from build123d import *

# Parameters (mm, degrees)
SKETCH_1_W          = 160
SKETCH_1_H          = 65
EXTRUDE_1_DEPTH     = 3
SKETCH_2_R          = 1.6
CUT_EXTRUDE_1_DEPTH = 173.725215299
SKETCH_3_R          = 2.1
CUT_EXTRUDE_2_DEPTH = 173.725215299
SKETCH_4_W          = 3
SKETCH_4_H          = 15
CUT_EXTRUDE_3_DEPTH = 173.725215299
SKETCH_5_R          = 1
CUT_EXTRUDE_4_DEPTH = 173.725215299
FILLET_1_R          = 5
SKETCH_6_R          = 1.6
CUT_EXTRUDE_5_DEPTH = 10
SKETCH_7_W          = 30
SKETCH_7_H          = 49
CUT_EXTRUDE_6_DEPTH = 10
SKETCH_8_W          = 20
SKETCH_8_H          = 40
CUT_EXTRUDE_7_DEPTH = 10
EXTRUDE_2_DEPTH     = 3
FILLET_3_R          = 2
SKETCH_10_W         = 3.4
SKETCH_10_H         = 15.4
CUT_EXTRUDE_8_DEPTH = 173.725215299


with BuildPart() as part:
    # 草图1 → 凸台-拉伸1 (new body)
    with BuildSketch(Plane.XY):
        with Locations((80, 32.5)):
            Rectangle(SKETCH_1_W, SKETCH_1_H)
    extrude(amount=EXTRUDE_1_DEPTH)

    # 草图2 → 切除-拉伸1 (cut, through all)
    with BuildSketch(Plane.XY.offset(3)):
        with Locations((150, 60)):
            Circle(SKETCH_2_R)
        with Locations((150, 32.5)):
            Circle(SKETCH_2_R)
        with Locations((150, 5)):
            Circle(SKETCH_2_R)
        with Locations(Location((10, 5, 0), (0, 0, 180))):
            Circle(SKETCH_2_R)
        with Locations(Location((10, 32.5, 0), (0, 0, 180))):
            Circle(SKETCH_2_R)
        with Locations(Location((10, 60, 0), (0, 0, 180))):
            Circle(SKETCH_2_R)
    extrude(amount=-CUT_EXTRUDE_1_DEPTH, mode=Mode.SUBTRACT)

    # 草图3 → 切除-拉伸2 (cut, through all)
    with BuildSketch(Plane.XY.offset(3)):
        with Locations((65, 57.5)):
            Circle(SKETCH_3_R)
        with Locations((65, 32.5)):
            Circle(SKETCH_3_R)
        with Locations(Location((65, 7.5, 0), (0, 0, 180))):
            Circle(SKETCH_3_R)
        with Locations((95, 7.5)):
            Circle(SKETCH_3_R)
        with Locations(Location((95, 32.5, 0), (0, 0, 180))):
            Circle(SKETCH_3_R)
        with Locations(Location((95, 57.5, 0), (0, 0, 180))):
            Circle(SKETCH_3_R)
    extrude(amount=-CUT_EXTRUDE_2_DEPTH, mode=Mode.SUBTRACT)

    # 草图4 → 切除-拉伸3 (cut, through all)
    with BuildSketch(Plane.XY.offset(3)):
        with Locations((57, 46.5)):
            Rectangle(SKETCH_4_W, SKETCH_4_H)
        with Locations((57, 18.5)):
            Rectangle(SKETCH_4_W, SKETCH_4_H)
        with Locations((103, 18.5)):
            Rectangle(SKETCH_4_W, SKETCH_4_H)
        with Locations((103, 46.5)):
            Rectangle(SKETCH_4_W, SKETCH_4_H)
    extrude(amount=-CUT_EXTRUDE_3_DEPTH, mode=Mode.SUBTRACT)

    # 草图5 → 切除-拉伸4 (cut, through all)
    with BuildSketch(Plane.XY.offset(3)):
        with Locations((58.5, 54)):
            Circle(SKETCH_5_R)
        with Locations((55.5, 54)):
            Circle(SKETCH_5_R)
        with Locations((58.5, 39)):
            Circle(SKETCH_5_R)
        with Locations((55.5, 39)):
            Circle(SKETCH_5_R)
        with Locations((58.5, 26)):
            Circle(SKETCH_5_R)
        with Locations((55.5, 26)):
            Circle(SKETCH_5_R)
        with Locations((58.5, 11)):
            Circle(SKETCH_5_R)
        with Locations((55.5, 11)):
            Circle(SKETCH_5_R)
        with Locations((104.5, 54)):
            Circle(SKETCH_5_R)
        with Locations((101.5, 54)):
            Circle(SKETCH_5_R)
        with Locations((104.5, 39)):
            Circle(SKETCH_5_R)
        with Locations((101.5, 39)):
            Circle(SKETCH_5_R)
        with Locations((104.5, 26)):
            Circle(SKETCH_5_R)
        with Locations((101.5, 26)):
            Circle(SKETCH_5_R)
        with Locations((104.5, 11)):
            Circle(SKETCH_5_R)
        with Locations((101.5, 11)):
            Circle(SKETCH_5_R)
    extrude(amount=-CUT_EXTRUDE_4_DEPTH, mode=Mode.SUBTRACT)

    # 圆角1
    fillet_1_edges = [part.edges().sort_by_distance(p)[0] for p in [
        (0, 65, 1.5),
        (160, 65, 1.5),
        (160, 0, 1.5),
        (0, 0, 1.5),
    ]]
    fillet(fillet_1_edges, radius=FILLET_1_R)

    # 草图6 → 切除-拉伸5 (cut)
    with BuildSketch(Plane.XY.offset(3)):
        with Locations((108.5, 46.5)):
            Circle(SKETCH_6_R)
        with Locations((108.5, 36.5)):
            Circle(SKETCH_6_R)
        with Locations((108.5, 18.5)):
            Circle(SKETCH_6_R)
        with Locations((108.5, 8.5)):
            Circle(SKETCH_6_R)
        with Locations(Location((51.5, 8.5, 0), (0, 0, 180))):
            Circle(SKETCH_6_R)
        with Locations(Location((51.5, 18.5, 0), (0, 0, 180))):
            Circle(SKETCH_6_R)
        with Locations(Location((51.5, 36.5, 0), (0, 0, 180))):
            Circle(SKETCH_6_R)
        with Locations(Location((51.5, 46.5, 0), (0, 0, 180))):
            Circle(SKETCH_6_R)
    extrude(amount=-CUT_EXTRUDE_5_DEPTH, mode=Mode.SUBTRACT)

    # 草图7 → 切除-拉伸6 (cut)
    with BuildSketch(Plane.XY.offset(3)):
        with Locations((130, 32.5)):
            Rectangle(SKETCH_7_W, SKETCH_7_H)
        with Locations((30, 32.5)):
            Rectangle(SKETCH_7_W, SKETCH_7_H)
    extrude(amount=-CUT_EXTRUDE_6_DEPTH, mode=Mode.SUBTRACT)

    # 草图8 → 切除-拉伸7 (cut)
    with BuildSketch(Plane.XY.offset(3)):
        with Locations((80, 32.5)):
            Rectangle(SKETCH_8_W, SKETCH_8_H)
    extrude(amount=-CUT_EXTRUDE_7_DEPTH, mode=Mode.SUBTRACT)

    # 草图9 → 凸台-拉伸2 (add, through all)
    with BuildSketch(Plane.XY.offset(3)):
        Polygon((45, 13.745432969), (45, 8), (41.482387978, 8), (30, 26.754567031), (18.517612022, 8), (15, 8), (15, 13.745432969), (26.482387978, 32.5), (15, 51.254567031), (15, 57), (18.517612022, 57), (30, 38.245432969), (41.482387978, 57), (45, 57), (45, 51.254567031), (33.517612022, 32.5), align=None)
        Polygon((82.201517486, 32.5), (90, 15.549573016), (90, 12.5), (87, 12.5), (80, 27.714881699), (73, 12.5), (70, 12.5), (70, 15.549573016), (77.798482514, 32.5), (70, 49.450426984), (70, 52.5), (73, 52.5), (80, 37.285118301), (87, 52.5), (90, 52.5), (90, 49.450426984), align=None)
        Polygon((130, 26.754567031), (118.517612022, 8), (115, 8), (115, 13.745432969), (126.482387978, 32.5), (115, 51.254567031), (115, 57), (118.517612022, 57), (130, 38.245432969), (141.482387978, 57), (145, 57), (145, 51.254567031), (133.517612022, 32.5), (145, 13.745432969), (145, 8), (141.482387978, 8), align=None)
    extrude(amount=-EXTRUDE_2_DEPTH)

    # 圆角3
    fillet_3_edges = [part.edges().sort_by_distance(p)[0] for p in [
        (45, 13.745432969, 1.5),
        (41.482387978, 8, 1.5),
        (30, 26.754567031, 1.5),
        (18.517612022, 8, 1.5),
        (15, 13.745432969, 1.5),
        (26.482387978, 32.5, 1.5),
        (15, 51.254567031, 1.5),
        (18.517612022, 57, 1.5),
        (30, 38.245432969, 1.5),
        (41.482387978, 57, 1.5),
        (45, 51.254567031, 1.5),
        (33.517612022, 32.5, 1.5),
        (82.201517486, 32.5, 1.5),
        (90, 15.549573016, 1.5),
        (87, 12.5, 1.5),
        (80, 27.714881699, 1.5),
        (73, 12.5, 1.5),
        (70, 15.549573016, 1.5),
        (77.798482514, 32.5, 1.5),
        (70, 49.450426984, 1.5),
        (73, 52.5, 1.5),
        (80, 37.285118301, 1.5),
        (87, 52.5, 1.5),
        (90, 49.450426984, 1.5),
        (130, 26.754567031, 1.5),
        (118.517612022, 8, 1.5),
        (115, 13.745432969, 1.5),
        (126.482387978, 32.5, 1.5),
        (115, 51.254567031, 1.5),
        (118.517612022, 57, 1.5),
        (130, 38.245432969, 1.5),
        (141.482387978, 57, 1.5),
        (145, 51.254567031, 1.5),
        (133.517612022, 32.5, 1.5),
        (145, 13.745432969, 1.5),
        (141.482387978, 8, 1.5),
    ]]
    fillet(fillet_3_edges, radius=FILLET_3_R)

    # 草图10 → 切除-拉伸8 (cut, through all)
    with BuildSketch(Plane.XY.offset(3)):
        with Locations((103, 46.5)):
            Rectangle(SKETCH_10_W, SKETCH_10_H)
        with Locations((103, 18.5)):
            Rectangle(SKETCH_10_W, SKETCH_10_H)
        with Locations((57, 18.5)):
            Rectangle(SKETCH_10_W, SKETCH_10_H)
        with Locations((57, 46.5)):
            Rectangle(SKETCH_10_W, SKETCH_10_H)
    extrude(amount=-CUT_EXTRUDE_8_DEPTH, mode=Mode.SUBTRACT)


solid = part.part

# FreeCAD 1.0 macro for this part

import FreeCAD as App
import Part
import Sketcher
from FreeCAD import Vector
Q = App.Units.Quantity


def edges_at(feature, points):
    """Names of the edges that pass closest to the given points."""
    edges = feature.Shape.Edges
    near = lambda p: min(range(len(edges)), key=lambda i: edges[i].distToShape(Part.Vertex(*p))[0])
    return sorted({f"Edge{near(p) + 1}" for p in points})

doc = App.newDocument("Part")
body = doc.addObject("PartDesign::Body", "Body")

# Sketch on XY plane
sketch1 = doc.addObject("Sketcher::SketchObject", "Sketch")
body.addObject(sketch1)
sketch1.AttachmentSupport = (doc.XY_Plane, [""])
sketch1.MapMode = "FlatFace"
sketch1.addGeometry([
    Part.LineSegment(Vector(0, 65, 0), Vector(0, 0, 0)),
    Part.LineSegment(Vector(0, 0, 0), Vector(160, 0, 0)),
    Part.LineSegment(Vector(160, 0, 0), Vector(160, 65, 0)),
    Part.LineSegment(Vector(160, 65, 0), Vector(0, 65, 0)),
], False)
sketch1.addConstraint([
    Sketcher.Constraint("Coincident", 0, 2, 1, 1),
    Sketcher.Constraint("Coincident", 1, 2, 2, 1),
    Sketcher.Constraint("Coincident", 2, 2, 3, 1),
    Sketcher.Constraint("Coincident", 3, 2, 0, 1),
    Sketcher.Constraint("Vertical", 0),
    Sketcher.Constraint("Horizontal", 1),
    Sketcher.Constraint("Vertical", 2),
    Sketcher.Constraint("Horizontal", 3),
    Sketcher.Constraint("Coincident", 0, 2, -1, 1),
    Sketcher.Constraint("DistanceX", 1, 1, 1, 2, Q("160 mm")),
    Sketcher.Constraint("DistanceY", 0, 2, 0, 1, Q("65 mm")),
])
pad1 = doc.addObject("PartDesign::Pad", "Pad")
body.addObject(pad1)
pad1.Profile = sketch1
pad1.Length = 3

# Sketch on XY plane
sketch2 = doc.addObject("Sketcher::SketchObject", "Sketch001")
body.addObject(sketch2)
sketch2.AttachmentSupport = (doc.XY_Plane, [""])
sketch2.MapMode = "FlatFace"
sketch2.AttachmentOffset = App.Placement(Vector(0, 0, 3), App.Rotation())
sketch2.addGeometry([
    Part.Circle(Vector(150, 60, 0), Vector(0, 0, 1), 1.6),  # 0
    Part.Circle(Vector(150, 32.5, 0), Vector(0, 0, 1), 1.6),  # 1
    Part.Circle(Vector(150, 5, 0), Vector(0, 0, 1), 1.6),  # 2
    Part.Circle(Vector(10, 5, 0), Vector(0, 0, 1), 1.6),  # 3
    Part.Circle(Vector(10, 32.5, 0), Vector(0, 0, 1), 1.6),  # 4
    Part.Circle(Vector(10, 60, 0), Vector(0, 0, 1), 1.6),  # 5
], False)
sketch2.addConstraint([
    Sketcher.Constraint("Equal", 0, 1),
    Sketcher.Constraint("Equal", 1, 2),
    Sketcher.Constraint("Equal", 2, 3),
    Sketcher.Constraint("Equal", 3, 4),
    Sketcher.Constraint("Equal", 4, 5),
    Sketcher.Constraint("Horizontal", 2, 3, 3, 3),
    Sketcher.Constraint("Horizontal", 1, 3, 4, 3),
    Sketcher.Constraint("Horizontal", 0, 3, 5, 3),
    Sketcher.Constraint("Vertical", 0, 3, 1, 3),
    Sketcher.Constraint("Vertical", 1, 3, 2, 3),
    Sketcher.Constraint("Vertical", 3, 3, 4, 3),
    Sketcher.Constraint("Vertical", 4, 3, 5, 3),
    Sketcher.Constraint("Diameter", 0, Q("3.2 mm")),
    Sketcher.Constraint("DistanceX", -1, 1, 0, 3, Q("150 mm")),
    Sketcher.Constraint("DistanceY", -1, 1, 0, 3, Q("60 mm")),
    Sketcher.Constraint("DistanceY", -1, 1, 2, 3, Q("5 mm")),
    Sketcher.Constraint("DistanceX", -1, 1, 3, 3, Q("10 mm")),
    Sketcher.Constraint("DistanceY", -1, 1, 1, 3, Q("32.5 mm")),
])
pocket1 = doc.addObject("PartDesign::Pocket", "Pocket")
body.addObject(pocket1)
pocket1.Profile = sketch2
pocket1.Type = "ThroughAll"

# Sketch on XY plane
sketch3 = doc.addObject("Sketcher::SketchObject", "Sketch002")
body.addObject(sketch3)
sketch3.AttachmentSupport = (doc.XY_Plane, [""])
sketch3.MapMode = "FlatFace"
sketch3.AttachmentOffset = App.Placement(Vector(0, 0, 3), App.Rotation())
sketch3.addGeometry([
    Part.Circle(Vector(65, 57.5, 0), Vector(0, 0, 1), 2.1),  # 0
    Part.Circle(Vector(65, 32.5, 0), Vector(0, 0, 1), 2.1),  # 1
    Part.Circle(Vector(65, 7.5, 0), Vector(0, 0, 1), 2.1),  # 2
    Part.Circle(Vector(95, 7.5, 0), Vector(0, 0, 1), 2.1),  # 3
    Part.Circle(Vector(95, 32.5, 0), Vector(0, 0, 1), 2.1),  # 4
    Part.Circle(Vector(95, 57.5, 0), Vector(0, 0, 1), 2.1),  # 5
], False)
sketch3.addConstraint([
    Sketcher.Constraint("Equal", 0, 1),
    Sketcher.Constraint("Equal", 1, 2),
    Sketcher.Constraint("Equal", 2, 3),
    Sketcher.Constraint("Equal", 3, 4),
    Sketcher.Constraint("Equal", 4, 5),
    Sketcher.Constraint("Horizontal", 2, 3, 3, 3),
    Sketcher.Constraint("Horizontal", 1, 3, 4, 3),
    Sketcher.Constraint("Horizontal", 0, 3, 5, 3),
    Sketcher.Constraint("Vertical", 0, 3, 1, 3),
    Sketcher.Constraint("Vertical", 1, 3, 2, 3),
    Sketcher.Constraint("Vertical", 3, 3, 4, 3),
    Sketcher.Constraint("Vertical", 4, 3, 5, 3),
    Sketcher.Constraint("Diameter", 0, Q("4.2 mm")),
    Sketcher.Constraint("DistanceX", -1, 1, 0, 3, Q("65 mm")),
    Sketcher.Constraint("DistanceX", -1, 1, 3, 3, Q("95 mm")),
    Sketcher.Constraint("DistanceY", 1, 3, 0, 3, Q("25 mm")),
    Sketcher.Constraint("DistanceY", 2, 3, 1, 3, Q("25 mm")),
    Sketcher.Constraint("DistanceY", -1, 1, 0, 3, Q("57.5 mm")),
])
pocket2 = doc.addObject("PartDesign::Pocket", "Pocket001")
body.addObject(pocket2)
pocket2.Profile = sketch3
pocket2.Type = "ThroughAll"

# Sketch on XY plane
sketch4 = doc.addObject("Sketcher::SketchObject", "Sketch003")
body.addObject(sketch4)
sketch4.AttachmentSupport = (doc.XY_Plane, [""])
sketch4.MapMode = "FlatFace"
sketch4.AttachmentOffset = App.Placement(Vector(0, 0, 3), App.Rotation())
sketch4.addGeometry([
    Part.LineSegment(Vector(55.5, 54, 0), Vector(55.5, 39, 0)),  # 0
    Part.LineSegment(Vector(55.5, 39, 0), Vector(58.5, 39, 0)),  # 1
    Part.LineSegment(Vector(58.5, 39, 0), Vector(58.5, 54, 0)),  # 2
    Part.LineSegment(Vector(58.5, 54, 0), Vector(55.5, 54, 0)),  # 3
    Part.LineSegment(Vector(55.5, 26, 0), Vector(55.5, 11, 0)),  # 4
    Part.LineSegment(Vector(55.5, 11, 0), Vector(58.5, 11, 0)),  # 5
    Part.LineSegment(Vector(58.5, 11, 0), Vector(58.5, 26, 0)),  # 6
    Part.LineSegment(Vector(58.5, 26, 0), Vector(55.5, 26, 0)),  # 7
    Part.LineSegment(Vector(101.5, 26, 0), Vector(101.5, 11, 0)),  # 8
    Part.LineSegment(Vector(101.5, 11, 0), Vector(104.5, 11, 0)),  # 9
    Part.LineSegment(Vector(104.5, 11, 0), Vector(104.5, 26, 0)),  # 10
    Part.LineSegment(Vector(104.5, 26, 0), Vector(101.5, 26, 0)),  # 11
    Part.LineSegment(Vector(101.5, 54, 0), Vector(101.5, 39, 0)),  # 12
    Part.LineSegment(Vector(101.5, 39, 0), Vector(104.5, 39, 0)),  # 13
    Part.LineSegment(Vector(104.5, 39, 0), Vector(104.5, 54, 0)),  # 14
    Part.LineSegment(Vector(104.5, 54, 0), Vector(101.5, 54, 0)),  # 15
], False)
sketch4.addConstraint([
    Sketcher.Constraint("Coincident", 0, 2, 1, 1),
    Sketcher.Constraint("Coincident", 1, 2, 2, 1),
    Sketcher.Constraint("Coincident", 2, 2, 3, 1),
    Sketcher.Constraint("Coincident", 3, 2, 0, 1),
    Sketcher.Constraint("Coincident", 4, 2, 5, 1),
    Sketcher.Constraint("Coincident", 5, 2, 6, 1),
    Sketcher.Constraint("Coincident", 6, 2, 7, 1),
    Sketcher.Constraint("Coincident", 7, 2, 4, 1),
    Sketcher.Constraint("Coincident", 8, 2, 9, 1),
    Sketcher.Constraint("Coincident", 9, 2, 10, 1),
    Sketcher.Constraint("Coincident", 10, 2, 11, 1),
    Sketcher.Constraint("Coincident", 11, 2, 8, 1),
    Sketcher.Constraint("Coincident", 12, 2, 13, 1),
    Sketcher.Constraint("Coincident", 13, 2, 14, 1),
    Sketcher.Constraint("Coincident", 14, 2, 15, 1),
    Sketcher.Constraint("Coincident", 15, 2, 12, 1),
    Sketcher.Constraint("Vertical", 0),
    Sketcher.Constraint("Horizontal", 1),
    Sketcher.Constraint("Vertical", 2),
    Sketcher.Constraint("Horizontal", 3),
    Sketcher.Constraint("Vertical", 4),
    Sketcher.Constraint("Horizontal", 5),
    Sketcher.Constraint("Vertical", 6),
    Sketcher.Constraint("Horizontal", 7),
    Sketcher.Constraint("Vertical", 8),
    Sketcher.Constraint("Horizontal", 9),
    Sketcher.Constraint("Vertical", 10),
    Sketcher.Constraint("Horizontal", 11),
    Sketcher.Constraint("Vertical", 12),
    Sketcher.Constraint("Horizontal", 13),
    Sketcher.Constraint("Vertical", 14),
    Sketcher.Constraint("Horizontal", 15),
    Sketcher.Constraint("Horizontal", 5, 2, 8, 2),
    Sketcher.Constraint("Horizontal", 7, 2, 10, 2),
    Sketcher.Constraint("Horizontal", 1, 2, 12, 2),
    Sketcher.Constraint("Horizontal", 3, 2, 14, 2),
    Sketcher.Constraint("Vertical", 3, 2, 4, 2),
    Sketcher.Constraint("Vertical", 2, 2, 5, 2),
    Sketcher.Constraint("Vertical", 11, 2, 12, 2),
    Sketcher.Constraint("Vertical", 10, 2, 13, 2),
    Sketcher.Constraint("Equal", 7, 9),
    Sketcher.Constraint("Equal", 2, 4),
    Sketcher.Constraint("DistanceX", 1, 1, 1, 2, Q("3 mm")),
    Sketcher.Constraint("DistanceY", 0, 2, 0, 1, Q("15 mm")),
    Sketcher.Constraint("DistanceY", -1, 1, 0, 2, Q("39 mm")),
    Sketcher.Constraint("DistanceY", -1, 1, 4, 2, Q("11 mm")),
    Sketcher.Constraint("DistanceX", 5, 2, 8, 2, Q("43 mm")),
    Sketcher.Constraint("DistanceX", -1, 1, 0, 2, Q("55.5 mm")),
])
pocket3 = doc.addObject("PartDesign::Pocket", "Pocket002")
body.addObject(pocket3)
pocket3.Profile = sketch4
pocket3.Type = "ThroughAll"

# Sketch on XY plane
sketch5 = doc.addObject("Sketcher::SketchObject", "Sketch004")
body.addObject(sketch5)
sketch5.AttachmentSupport = (doc.XY_Plane, [""])
sketch5.MapMode = "FlatFace"
sketch5.AttachmentOffset = App.Placement(Vector(0, 0, 3), App.Rotation())
sketch5.addGeometry([
    Part.Circle(Vector(58.5, 54, 0), Vector(0, 0, 1), 1),  # 0
    Part.Circle(Vector(55.5, 54, 0), Vector(0, 0, 1), 1),  # 1
    Part.Circle(Vector(58.5, 39, 0), Vector(0, 0, 1), 1),  # 2
    Part.Circle(Vector(55.5, 39, 0), Vector(0, 0, 1), 1),  # 3
    Part.Circle(Vector(58.5, 26, 0), Vector(0, 0, 1), 1),  # 4
    Part.Circle(Vector(55.5, 26, 0), Vector(0, 0, 1), 1),  # 5
    Part.Circle(Vector(58.5, 11, 0), Vector(0, 0, 1), 1),  # 6
    Part.Circle(Vector(55.5, 11, 0), Vector(0, 0, 1), 1),  # 7
    Part.Circle(Vector(104.5, 54, 0), Vector(0, 0, 1), 1),  # 8
    Part.Circle(Vector(101.5, 54, 0), Vector(0, 0, 1), 1),  # 9
    Part.Circle(Vector(104.5, 39, 0), Vector(0, 0, 1), 1),  # 10
    Part.Circle(Vector(101.5, 39, 0), Vector(0, 0, 1), 1),  # 11
    Part.Circle(Vector(104.5, 26, 0), Vector(0, 0, 1), 1),  # 12
    Part.Circle(Vector(101.5, 26, 0), Vector(0, 0, 1), 1),  # 13
    Part.Circle(Vector(104.5, 11, 0), Vector(0, 0, 1), 1),  # 14
    Part.Circle(Vector(101.5, 11, 0), Vector(0, 0, 1), 1),  # 15
], False)
sketch5.addConstraint([
    Sketcher.Constraint("Equal", 0, 1),
    Sketcher.Constraint("Equal", 1, 2),
    Sketcher.Constraint("Equal", 2, 3),
    Sketcher.Constraint("Equal", 3, 4),
    Sketcher.Constraint("Equal", 4, 5),
    Sketcher.Constraint("Equal", 5, 6),
    Sketcher.Constraint("Equal", 6, 7),
    Sketcher.Constraint("Equal", 7, 8),
    Sketcher.Constraint("Equal", 8, 9),
    Sketcher.Constraint("Equal", 9, 10),
    Sketcher.Constraint("Equal", 10, 11),
    Sketcher.Constraint("Equal", 11, 12),
    Sketcher.Constraint("Equal", 12, 13),
    Sketcher.Constraint("Equal", 13, 14),
    Sketcher.Constraint("Equal", 14, 15),
    Sketcher.Constraint("Horizontal", 0, 3, 1, 3),
    Sketcher.Constraint("Horizontal", 2, 3, 3, 3),
    Sketcher.Constraint("Horizontal", 4, 3, 5, 3),
    Sketcher.Constraint("Horizontal", 6, 3, 7, 3),
    Sketcher.Constraint("Horizontal", 1, 3, 8, 3),
    Sketcher.Constraint("Horizontal", 8, 3, 9, 3),
    Sketcher.Constraint("Horizontal", 3, 3, 10, 3),
    Sketcher.Constraint("Horizontal", 10, 3, 11, 3),
    Sketcher.Constraint("Horizontal", 5, 3, 12, 3),
    Sketcher.Constraint("Horizontal", 12, 3, 13, 3),
    Sketcher.Constraint("Horizontal", 7, 3, 14, 3),
    Sketcher.Constraint("Horizontal", 14, 3, 15, 3),
    Sketcher.Constraint("Vertical", 0, 3, 2, 3),
    Sketcher.Constraint("Vertical", 1, 3, 3, 3),
    Sketcher.Constraint("Vertical", 2, 3, 4, 3),
    Sketcher.Constraint("Vertical", 3, 3, 5, 3),
    Sketcher.Constraint("Vertical", 4, 3, 6, 3),
    Sketcher.Constraint("Vertical", 5, 3, 7, 3),
    Sketcher.Constraint("Vertical", 8, 3, 10, 3),
    Sketcher.Constraint("Vertical", 9, 3, 11, 3),
    Sketcher.Constraint("Vertical", 10, 3, 12, 3),
    Sketcher.Constraint("Vertical", 11, 3, 13, 3),
    Sketcher.Constraint("Vertical", 12, 3, 14, 3),
    Sketcher.Constraint("Vertical", 13, 3, 15, 3),
    Sketcher.Constraint("Diameter", 0, Q("2 mm")),
    Sketcher.Constraint("DistanceY", -1, 1, 0, 3, Q("54 mm")),
    Sketcher.Constraint("DistanceY", -1, 1, 2, 3, Q("39 mm")),
    Sketcher.Constraint("DistanceY", -1, 1, 4, 3, Q("26 mm")),
    Sketcher.Constraint("DistanceY", -1, 1, 6, 3, Q("11 mm")),
    Sketcher.Constraint("DistanceX", 1, 3, 0, 3, Q("3 mm")),
    Sketcher.Constraint("DistanceX", 0, 3, 8, 3, Q("46 mm")),
    Sketcher.Constraint("DistanceX", 9, 3, 8, 3, Q("3 mm")),
    Sketcher.Constraint("DistanceX", -1, 1, 0, 3, Q("58.5 mm")),
])
pocket4 = doc.addObject("PartDesign::Pocket", "Pocket003")
body.addObject(pocket4)
pocket4.Profile = sketch5
pocket4.Type = "ThroughAll"
doc.recompute()

fillet = doc.addObject("PartDesign::Fillet", "Fillet")
body.addObject(fillet)
fillet.Base = (pocket4, edges_at(pocket4, [
    (0, 65, 1.5),
    (160, 65, 1.5),
    (160, 0, 1.5),
    (0, 0, 1.5),
]))
fillet.Radius = 5

# Sketch on XY plane
sketch6 = doc.addObject("Sketcher::SketchObject", "Sketch005")
body.addObject(sketch6)
sketch6.AttachmentSupport = (doc.XY_Plane, [""])
sketch6.MapMode = "FlatFace"
sketch6.AttachmentOffset = App.Placement(Vector(0, 0, 3), App.Rotation())
sketch6.addGeometry([
    Part.Circle(Vector(108.5, 46.5, 0), Vector(0, 0, 1), 1.6),  # 0
    Part.Circle(Vector(108.5, 36.5, 0), Vector(0, 0, 1), 1.6),  # 1
    Part.Circle(Vector(108.5, 18.5, 0), Vector(0, 0, 1), 1.6),  # 2
    Part.Circle(Vector(108.5, 8.5, 0), Vector(0, 0, 1), 1.6),  # 3
    Part.Circle(Vector(51.5, 8.5, 0), Vector(0, 0, 1), 1.6),  # 4
    Part.Circle(Vector(51.5, 18.5, 0), Vector(0, 0, 1), 1.6),  # 5
    Part.Circle(Vector(51.5, 36.5, 0), Vector(0, 0, 1), 1.6),  # 6
    Part.Circle(Vector(51.5, 46.5, 0), Vector(0, 0, 1), 1.6),  # 7
], False)
sketch6.addConstraint([
    Sketcher.Constraint("Equal", 0, 1),
    Sketcher.Constraint("Equal", 1, 2),
    Sketcher.Constraint("Equal", 2, 3),
    Sketcher.Constraint("Equal", 3, 4),
    Sketcher.Constraint("Equal", 4, 5),
    Sketcher.Constraint("Equal", 5, 6),
    Sketcher.Constraint("Equal", 6, 7),
    Sketcher.Constraint("Horizontal", 3, 3, 4, 3),
    Sketcher.Constraint("Horizontal", 2, 3, 5, 3),
    Sketcher.Constraint("Horizontal", 1, 3, 6, 3),
    Sketcher.Constraint("Horizontal", 0, 3, 7, 3),
    Sketcher.Constraint("Vertical", 0, 3, 1, 3),
    Sketcher.Constraint("Vertical", 1, 3, 2, 3),
    Sketcher.Constraint("Vertical", 2, 3, 3, 3),
    Sketcher.Constraint("Vertical", 4, 3, 5, 3),
    Sketcher.Constraint("Vertical", 5, 3, 6, 3),
    Sketcher.Constraint("Vertical", 6, 3, 7, 3),
    Sketcher.Constraint("Diameter", 0, Q("3.2 mm")),
    Sketcher.Constraint("DistanceY", 1, 3, 0, 3, Q("10 mm")),
    Sketcher.Constraint("DistanceY", 2, 3, 1, 3, Q("18 mm")),
    Sketcher.Constraint("DistanceY", 3, 3, 2, 3, Q("10 mm")),
    Sketcher.Constraint("DistanceX", 4, 3, 3, 3, Q("57 mm")),
    Sketcher.Constraint("DistanceX", -1, 1, 0, 3, Q("108.5 mm")),
    Sketcher.Constraint("DistanceY", -1, 1, 0, 3, Q("46.5 mm")),
])
pocket5 = doc.addObject("PartDesign::Pocket", "Pocket004")
body.addObject(pocket5)
pocket5.Profile = sketch6
pocket5.Length = 10

# Sketch on XY plane
sketch7 = doc.addObject("Sketcher::SketchObject", "Sketch006")
body.addObject(sketch7)
sketch7.AttachmentSupport = (doc.XY_Plane, [""])
sketch7.MapMode = "FlatFace"
sketch7.AttachmentOffset = App.Placement(Vector(0, 0, 3), App.Rotation())
sketch7.addGeometry([
    Part.LineSegment(Vector(115, 57, 0), Vector(115, 8, 0)),  # 0
    Part.LineSegment(Vector(115, 8, 0), Vector(145, 8, 0)),  # 1
    Part.LineSegment(Vector(145, 8, 0), Vector(145, 57, 0)),  # 2
    Part.LineSegment(Vector(145, 57, 0), Vector(115, 57, 0)),  # 3
    Part.LineSegment(Vector(15, 57, 0), Vector(15, 8, 0)),  # 4
    Part.LineSegment(Vector(15, 8, 0), Vector(45, 8, 0)),  # 5
    Part.LineSegment(Vector(45, 8, 0), Vector(45, 57, 0)),  # 6
    Part.LineSegment(Vector(45, 57, 0), Vector(15, 57, 0)),  # 7
], False)
sketch7.addConstraint([
    Sketcher.Constraint("Coincident", 0, 2, 1, 1),
    Sketcher.Constraint("Coincident", 1, 2, 2, 1),
    Sketcher.Constraint("Coincident", 2, 2, 3, 1),
    Sketcher.Constraint("Coincident", 3, 2, 0, 1),
    Sketcher.Constraint("Coincident", 4, 2, 5, 1),
    Sketcher.Constraint("Coincident", 5, 2, 6, 1),
    Sketcher.Constraint("Coincident", 6, 2, 7, 1),
    Sketcher.Constraint("Coincident", 7, 2, 4, 1),
    Sketcher.Constraint("Vertical", 0),
    Sketcher.Constraint("Horizontal", 1),
    Sketcher.Constraint("Vertical", 2),
    Sketcher.Constraint("Horizontal", 3),
    Sketcher.Constraint("Vertical", 4),
    Sketcher.Constraint("Horizontal", 5),
    Sketcher.Constraint("Vertical", 6),
    Sketcher.Constraint("Horizontal", 7),
    Sketcher.Constraint("Horizontal", 1, 2, 4, 2),
    Sketcher.Constraint("Horizontal", 3, 2, 6, 2),
    Sketcher.Constraint("Equal", 3, 5),
    Sketcher.Constraint("DistanceX", 1, 1, 1, 2, Q("30 mm")),
    Sketcher.Constraint("DistanceY", 0, 2, 0, 1, Q("49 mm")),
    Sketcher.Constraint("DistanceX", -1, 1, 0, 2, Q("115 mm")),
    Sketcher.Constraint("DistanceY", -1, 1, 0, 2, Q("8 mm")),
    Sketcher.Constraint("DistanceX", -1, 1, 4, 2, Q("15 mm")),
])
pocket6 = doc.addObject("PartDesign::Pocket", "Pocket005")
body.addObject(pocket6)
pocket6.Profile = sketch7
pocket6.Length = 10

# Sketch on XY plane
sketch8 = doc.addObject("Sketcher::SketchObject", "Sketch007")
body.addObject(sketch8)
sketch8.AttachmentSupport = (doc.XY_Plane, [""])
sketch8.MapMode = "FlatFace"
sketch8.AttachmentOffset = App.Placement(Vector(0, 0, 3), App.Rotation())
sketch8.addGeometry([
    Part.LineSegment(Vector(70, 52.5, 0), Vector(70, 12.5, 0)),
    Part.LineSegment(Vector(70, 12.5, 0), Vector(90, 12.5, 0)),
    Part.LineSegment(Vector(90, 12.5, 0), Vector(90, 52.5, 0)),
    Part.LineSegment(Vector(90, 52.5, 0), Vector(70, 52.5, 0)),
], False)
sketch8.addConstraint([
    Sketcher.Constraint("Coincident", 0, 2, 1, 1),
    Sketcher.Constraint("Coincident", 1, 2, 2, 1),
    Sketcher.Constraint("Coincident", 2, 2, 3, 1),
    Sketcher.Constraint("Coincident", 3, 2, 0, 1),
    Sketcher.Constraint("Vertical", 0),
    Sketcher.Constraint("Horizontal", 1),
    Sketcher.Constraint("Vertical", 2),
    Sketcher.Constraint("Horizontal", 3),
    Sketcher.Constraint("DistanceX", 1, 1, 1, 2, Q("20 mm")),
    Sketcher.Constraint("DistanceY", 0, 2, 0, 1, Q("40 mm")),
    Sketcher.Constraint("DistanceX", -1, 1, 0, 2, Q("70 mm")),
    Sketcher.Constraint("DistanceY", -1, 1, 0, 2, Q("12.5 mm")),
])
pocket7 = doc.addObject("PartDesign::Pocket", "Pocket006")
body.addObject(pocket7)
pocket7.Profile = sketch8
pocket7.Length = 10

# Sketch on XY plane
sketch9 = doc.addObject("Sketcher::SketchObject", "Sketch008")
body.addObject(sketch9)
sketch9.AttachmentSupport = (doc.XY_Plane, [""])
sketch9.MapMode = "FlatFace"
sketch9.AttachmentOffset = App.Placement(Vector(0, 0, 3), App.Rotation())
sketch9.addGeometry([
    Part.LineSegment(Vector(45, 8, 0), Vector(45, 13.745433, 0)),  # 0
    Part.LineSegment(Vector(45, 13.745433, 0), Vector(33.517612, 32.5, 0)),  # 1
    Part.LineSegment(Vector(33.517612, 32.5, 0), Vector(45, 51.254567, 0)),  # 2
    Part.LineSegment(Vector(45, 51.254567, 0), Vector(45, 57, 0)),  # 3
    Part.LineSegment(Vector(45, 57, 0), Vector(41.482388, 57, 0)),  # 4
    Part.LineSegment(Vector(41.482388, 57, 0), Vector(30, 38.245433, 0)),  # 5
    Part.LineSegment(Vector(30, 38.245433, 0), Vector(18.517612, 57, 0)),  # 6
    Part.LineSegment(Vector(18.517612, 57, 0), Vector(15, 57, 0)),  # 7
    Part.LineSegment(Vector(15, 57, 0), Vector(15, 51.254567, 0)),  # 8
    Part.LineSegment(Vector(15, 51.254567, 0), Vector(26.482388, 32.5, 0)),  # 9
    Part.LineSegment(Vector(26.482388, 32.5, 0), Vector(15, 13.745433, 0)),  # 10
    Part.LineSegment(Vector(15, 13.745433, 0), Vector(15, 8, 0)),  # 11
    Part.LineSegment(Vector(15, 8, 0), Vector(18.517612, 8, 0)),  # 12
    Part.LineSegment(Vector(18.517612, 8, 0), Vector(30, 26.754567, 0)),  # 13
    Part.LineSegment(Vector(30, 26.754567, 0), Vector(41.482388, 8, 0)),  # 14
    Part.LineSegment(Vector(41.482388, 8, 0), Vector(45, 8, 0)),  # 15
    Part.LineSegment(Vector(90, 15.549573, 0), Vector(82.201517, 32.5, 0)),  # 16
    Part.LineSegment(Vector(82.201517, 32.5, 0), Vector(90, 49.450427, 0)),  # 17
    Part.LineSegment(Vector(90, 49.450427, 0), Vector(90, 52.5, 0)),  # 18
    Part.LineSegment(Vector(90, 52.5, 0), Vector(87, 52.5, 0)),  # 19
    Part.LineSegment(Vector(87, 52.5, 0), Vector(80, 37.285118, 0)),  # 20
    Part.LineSegment(Vector(80, 37.285118, 0), Vector(73, 52.5, 0)),  # 21
    Part.LineSegment(Vector(73, 52.5, 0), Vector(70, 52.5, 0)),  # 22
    Part.LineSegment(Vector(70, 52.5, 0), Vector(70, 49.450427, 0)),  # 23
    Part.LineSegment(Vector(70, 49.450427, 0), Vector(77.798483, 32.5, 0)),  # 24
    Part.LineSegment(Vector(77.798483, 32.5, 0), Vector(70, 15.549573, 0)),  # 25
    Part.LineSegment(Vector(70, 15.549573, 0), Vector(70, 12.5, 0)),  # 26
    Part.LineSegment(Vector(70, 12.5, 0), Vector(73, 12.5, 0)),  # 27
    Part.LineSegment(Vector(73, 12.5, 0), Vector(80, 27.714882, 0)),  # 28
    Part.LineSegment(Vector(80, 27.714882, 0), Vector(87, 12.5, 0)),  # 29
    Part.LineSegment(Vector(87, 12.5, 0), Vector(90, 12.5, 0)),  # 30
    Part.LineSegment(Vector(90, 12.5, 0), Vector(90, 15.549573, 0)),  # 31
    Part.LineSegment(Vector(118.517612, 8, 0), Vector(130, 26.754567, 0)),  # 32
    Part.LineSegment(Vector(130, 26.754567, 0), Vector(141.482388, 8, 0)),  # 33
    Part.LineSegment(Vector(141.482388, 8, 0), Vector(145, 8, 0)),  # 34
    Part.LineSegment(Vector(145, 8, 0), Vector(145, 13.745433, 0)),  # 35
    Part.LineSegment(Vector(145, 13.745433, 0), Vector(133.517612, 32.5, 0)),  # 36
    Part.LineSegment(Vector(133.517612, 32.5, 0), Vector(145, 51.254567, 0)),  # 37
    Part.LineSegment(Vector(145, 51.254567, 0), Vector(145, 57, 0)),  # 38
    Part.LineSegment(Vector(145, 57, 0), Vector(141.482388, 57, 0)),  # 39
    Part.LineSegment(Vector(141.482388, 57, 0), Vector(130, 38.245433, 0)),  # 40
    Part.LineSegment(Vector(130, 38.245433, 0), Vector(118.517612, 57, 0)),  # 41
    Part.LineSegment(Vector(118.517612, 57, 0), Vector(115, 57, 0)),  # 42
    Part.LineSegment(Vector(115, 57, 0), Vector(115, 51.254567, 0)),  # 43
    Part.LineSegment(Vector(115, 51.254567, 0), Vector(126.482388, 32.5, 0)),  # 44
    Part.LineSegment(Vector(126.482388, 32.5, 0), Vector(115, 13.745433, 0)),  # 45
    Part.LineSegment(Vector(115, 13.745433, 0), Vector(115, 8, 0)),  # 46
    Part.LineSegment(Vector(115, 8, 0), Vector(118.517612, 8, 0)),  # 47
], False)
sketch9.addConstraint([
    Sketcher.Constraint("Coincident", 0, 2, 1, 1),
    Sketcher.Constraint("Coincident", 1, 2, 2, 1),
    Sketcher.Constraint("Coincident", 2, 2, 3, 1),
    Sketcher.Constraint("Coincident", 3, 2, 4, 1),
    Sketcher.Constraint("Coincident", 4, 2, 5, 1),
    Sketcher.Constraint("Coincident", 5, 2, 6, 1),
    Sketcher.Constraint("Coincident", 6, 2, 7, 1),
    Sketcher.Constraint("Coincident", 7, 2, 8, 1),
    Sketcher.Constraint("Coincident", 8, 2, 9, 1),
    Sketcher.Constraint("Coincident", 9, 2, 10, 1),
    Sketcher.Constraint("Coincident", 10, 2, 11, 1),
    Sketcher.Constraint("Coincident", 11, 2, 12, 1),
    Sketcher.Constraint("Coincident", 12, 2, 13, 1),
    Sketcher.Constraint("Coincident", 13, 2, 14, 1),
    Sketcher.Constraint("Coincident", 14, 2, 15, 1),
    Sketcher.Constraint("Coincident", 15, 2, 0, 1),
    Sketcher.Constraint("Coincident", 16, 2, 17, 1),
    Sketcher.Constraint("Coincident", 17, 2, 18, 1),
    Sketcher.Constraint("Coincident", 18, 2, 19, 1),
    Sketcher.Constraint("Coincident", 19, 2, 20, 1),
    Sketcher.Constraint("Coincident", 20, 2, 21, 1),
    Sketcher.Constraint("Coincident", 21, 2, 22, 1),
    Sketcher.Constraint("Coincident", 22, 2, 23, 1),
    Sketcher.Constraint("Coincident", 23, 2, 24, 1),
    Sketcher.Constraint("Coincident", 24, 2, 25, 1),
    Sketcher.Constraint("Coincident", 25, 2, 26, 1),
    Sketcher.Constraint("Coincident", 26, 2, 27, 1),
    Sketcher.Constraint("Coincident", 27, 2, 28, 1),
    Sketcher.Constraint("Coincident", 28, 2, 29, 1),
    Sketcher.Constraint("Coincident", 29, 2, 30, 1),
    Sketcher.Constraint("Coincident", 30, 2, 31, 1),
    Sketcher.Constraint("Coincident", 31, 2, 16, 1),
    Sketcher.Constraint("Coincident", 32, 2, 33, 1),
    Sketcher.Constraint("Coincident", 33, 2, 34, 1),
    Sketcher.Constraint("Coincident", 34, 2, 35, 1),
    Sketcher.Constraint("Coincident", 35, 2, 36, 1),
    Sketcher.Constraint("Coincident", 36, 2, 37, 1),
    Sketcher.Constraint("Coincident", 37, 2, 38, 1),
    Sketcher.Constraint("Coincident", 38, 2, 39, 1),
    Sketcher.Constraint("Coincident", 39, 2, 40, 1),
    Sketcher.Constraint("Coincident", 40, 2, 41, 1),
    Sketcher.Constraint("Coincident", 41, 2, 42, 1),
    Sketcher.Constraint("Coincident", 42, 2, 43, 1),
    Sketcher.Constraint("Coincident", 43, 2, 44, 1),
    Sketcher.Constraint("Coincident", 44, 2, 45, 1),
    Sketcher.Constraint("Coincident", 45, 2, 46, 1),
    Sketcher.Constraint("Coincident", 46, 2, 47, 1),
    Sketcher.Constraint("Coincident", 47, 2, 32, 1),
    Sketcher.Constraint("Vertical", 0),
    Sketcher.Constraint("Vertical", 3),
    Sketcher.Constraint("Horizontal", 4),
    Sketcher.Constraint("Horizontal", 7),
    Sketcher.Constraint("Vertical", 8),
    Sketcher.Constraint("Vertical", 11),
    Sketcher.Constraint("Horizontal", 12),
    Sketcher.Constraint("Horizontal", 15),
    Sketcher.Constraint("Vertical", 18),
    Sketcher.Constraint("Horizontal", 19),
    Sketcher.Constraint("Horizontal", 22),
    Sketcher.Constraint("Vertical", 23),
    Sketcher.Constraint("Vertical", 26),
    Sketcher.Constraint("Horizontal", 27),
    Sketcher.Constraint("Horizontal", 30),
    Sketcher.Constraint("Vertical", 31),
    Sketcher.Constraint("Horizontal", 34),
    Sketcher.Constraint("Vertical", 35),
    Sketcher.Constraint("Vertical", 38),
    Sketcher.Constraint("Horizontal", 39),
    Sketcher.Constraint("Horizontal", 42),
    Sketcher.Constraint("Vertical", 43),
    Sketcher.Constraint("Vertical", 46),
    Sketcher.Constraint("Horizontal", 47),
    Sketcher.Constraint("Parallel", 2, 5),
    Sketcher.Constraint("Parallel", 1, 6),
    Sketcher.Constraint("Parallel", 6, 9),
    Sketcher.Constraint("Parallel", 5, 10),
    Sketcher.Constraint("Parallel", 10, 13),
    Sketcher.Constraint("Parallel", 9, 14),
    Sketcher.Constraint("Parallel", 17, 20),
    Sketcher.Constraint("Parallel", 16, 21),
    Sketcher.Constraint("Parallel", 21, 24),
    Sketcher.Constraint("Parallel", 20, 25),
    Sketcher.Constraint("Parallel", 25, 28),
    Sketcher.Constraint("Parallel", 24, 29),
    Sketcher.Constraint("Parallel", 13, 32),
    Sketcher.Constraint("Parallel", 14, 33),
    Sketcher.Constraint("Parallel", 33, 36),
    Sketcher.Constraint("Parallel", 32, 37),
    Sketcher.Constraint("Parallel", 37, 40),
    Sketcher.Constraint("Parallel", 36, 41),
    Sketcher.Constraint("Parallel", 41, 44),
    Sketcher.Constraint("Parallel", 40, 45),
    Sketcher.Constraint("Horizontal", 4, 2, 6, 2),
    Sketcher.Constraint("Horizontal", 2, 2, 8, 2),
    Sketcher.Constraint("Horizontal", 1, 2, 9, 2),
    Sketcher.Constraint("Horizontal", 0, 2, 10, 2),
    Sketcher.Constraint("Horizontal", 12, 2, 14, 2),
    Sketcher.Constraint("Horizontal", 9, 2, 16, 2),
    Sketcher.Constraint("Horizontal", 19, 2, 21, 2),
    Sketcher.Constraint("Horizontal", 17, 2, 23, 2),
    Sketcher.Constraint("Horizontal", 16, 2, 24, 2),
    Sketcher.Constraint("Horizontal", 27, 2, 29, 2),
    Sketcher.Constraint("Horizontal", 25, 2, 31, 2),
    Sketcher.Constraint("Horizontal", 13, 2, 32, 2),
    Sketcher.Constraint("Horizontal", 15, 2, 33, 2),
    Sketcher.Constraint("Horizontal", 10, 2, 35, 2),
    Sketcher.Constraint("Horizontal", 24, 2, 36, 2),
    Sketcher.Constraint("Horizontal", 8, 2, 37, 2),
    Sketcher.Constraint("Horizontal", 7, 2, 38, 2),
    Sketcher.Constraint("Horizontal", 5, 2, 40, 2),
    Sketcher.Constraint("Horizontal", 39, 2, 41, 2),
    Sketcher.Constraint("Horizontal", 37, 2, 43, 2),
    Sketcher.Constraint("Horizontal", 36, 2, 44, 2),
    Sketcher.Constraint("Horizontal", 35, 2, 45, 2),
    Sketcher.Constraint("Horizontal", 34, 2, 46, 2),
    Sketcher.Constraint("Vertical", 0, 2, 2, 2),
    Sketcher.Constraint("Vertical", 8, 2, 10, 2),
    Sketcher.Constraint("Vertical", 6, 2, 12, 2),
    Sketcher.Constraint("Vertical", 5, 2, 13, 2),
    Sketcher.Constraint("Vertical", 23, 2, 25, 2),
    Sketcher.Constraint("Vertical", 21, 2, 27, 2),
    Sketcher.Constraint("Vertical", 20, 2, 28, 2),
    Sketcher.Constraint("Vertical", 19, 2, 29, 2),
    Sketcher.Constraint("Vertical", 33, 2, 39, 2),
    Sketcher.Constraint("Equal", 4, 7),
    Sketcher.Constraint("Equal", 19, 22),
    Sketcher.Constraint("Equal", 15, 34),
    Sketcher.Constraint("Equal", 39, 42),
    Sketcher.Constraint("Equal", 0, 3),
    Sketcher.Constraint("Equal", 23, 26),
    Sketcher.Constraint("Equal", 2, 5),
    Sketcher.Constraint("DistanceX", 19, 2, 19, 1, Q("3 mm")),
    Sketcher.Constraint("DistanceX", -1, 1, 0, 2, Q("45 mm")),
    Sketcher.Constraint("DistanceY", -1, 1, 3, 2, Q("57 mm")),
    Sketcher.Constraint("DistanceX", -1, 1, 5, 2, Q("30 mm")),
    Sketcher.Constraint("DistanceY", -1, 1, 11, 2, Q("8 mm")),
    Sketcher.Constraint("DistanceX", -1, 1, 17, 2, Q("90 mm")),
    Sketcher.Constraint("DistanceX", -1, 1, 20, 2, Q("80 mm")),
    Sketcher.Constraint("DistanceX", -1, 1, 32, 2, Q("130 mm")),
    Sketcher.Constraint("DistanceY", 16, 2, 18, 2, Q("20 mm")),
    Sketcher.Constraint("Distance", 1, Q("21.99043 mm")),
    Sketcher.Constraint("Distance", 16, Q("18.658331 mm")),
    Sketcher.Constraint("DistanceX", 4, 2, 4, 1, Q("3.517612 mm")),
    Sketcher.Constraint("DistanceY", 18, 1, 18, 2, Q("3.049573 mm")),
])
pad2 = doc.addObject("PartDesign::Pad", "Pad001")
body.addObject(pad2)
pad2.Profile = sketch9
pad2.Length = 3
pad2.Reversed = True
doc.recompute()

fillet2 = doc.addObject("PartDesign::Fillet", "Fillet001")
body.addObject(fillet2)
fillet2.Base = (pad2, edges_at(pad2, [
    (45, 13.745, 1.5),
    (41.482, 8, 1.5),
    (30, 26.755, 1.5),
    (18.518, 8, 1.5),
    (15, 13.745, 1.5),
    (26.482, 32.5, 1.5),
    (15, 51.255, 1.5),
    (18.518, 57, 1.5),
    (30, 38.245, 1.5),
    (41.482, 57, 1.5),
    (45, 51.255, 1.5),
    (33.518, 32.5, 1.5),
    (82.202, 32.5, 1.5),
    (90, 15.55, 1.5),
    (87, 12.5, 1.5),
    (80, 27.715, 1.5),
    (73, 12.5, 1.5),
    (70, 15.55, 1.5),
    (77.798, 32.5, 1.5),
    (70, 49.45, 1.5),
    (73, 52.5, 1.5),
    (80, 37.285, 1.5),
    (87, 52.5, 1.5),
    (90, 49.45, 1.5),
    (130, 26.755, 1.5),
    (118.518, 8, 1.5),
    (115, 13.745, 1.5),
    (126.482, 32.5, 1.5),
    (115, 51.255, 1.5),
    (118.518, 57, 1.5),
    (130, 38.245, 1.5),
    (141.482, 57, 1.5),
    (145, 51.255, 1.5),
    (133.518, 32.5, 1.5),
    (145, 13.745, 1.5),
    (141.482, 8, 1.5),
]))
fillet2.Radius = 2

# Sketch on XY plane
sketch10 = doc.addObject("Sketcher::SketchObject", "Sketch009")
body.addObject(sketch10)
sketch10.AttachmentSupport = (doc.XY_Plane, [""])
sketch10.MapMode = "FlatFace"
sketch10.AttachmentOffset = App.Placement(Vector(0, 0, 3), App.Rotation())
sketch10.addGeometry([
    Part.LineSegment(Vector(101.3, 54.2, 0), Vector(101.3, 38.8, 0)),  # 0
    Part.LineSegment(Vector(101.3, 38.8, 0), Vector(104.7, 38.8, 0)),  # 1
    Part.LineSegment(Vector(104.7, 38.8, 0), Vector(104.7, 54.2, 0)),  # 2
    Part.LineSegment(Vector(104.7, 54.2, 0), Vector(101.3, 54.2, 0)),  # 3
    Part.LineSegment(Vector(101.3, 26.2, 0), Vector(101.3, 10.8, 0)),  # 4
    Part.LineSegment(Vector(101.3, 10.8, 0), Vector(104.7, 10.8, 0)),  # 5
    Part.LineSegment(Vector(104.7, 10.8, 0), Vector(104.7, 26.2, 0)),  # 6
    Part.LineSegment(Vector(104.7, 26.2, 0), Vector(101.3, 26.2, 0)),  # 7
    Part.LineSegment(Vector(55.3, 26.2, 0), Vector(55.3, 10.8, 0)),  # 8
    Part.LineSegment(Vector(55.3, 10.8, 0), Vector(58.7, 10.8, 0)),  # 9
    Part.LineSegment(Vector(58.7, 10.8, 0), Vector(58.7, 26.2, 0)),  # 10
    Part.LineSegment(Vector(58.7, 26.2, 0), Vector(55.3, 26.2, 0)),  # 11
    Part.LineSegment(Vector(55.3, 54.2, 0), Vector(55.3, 38.8, 0)),  # 12
    Part.LineSegment(Vector(55.3, 38.8, 0), Vector(58.7, 38.8, 0)),  # 13
    Part.LineSegment(Vector(58.7, 38.8, 0), Vector(58.7, 54.2, 0)),  # 14
    Part.LineSegment(Vector(58.7, 54.2, 0), Vector(55.3, 54.2, 0)),  # 15
], False)
sketch10.addConstraint([
    Sketcher.Constraint("Coincident", 0, 2, 1, 1),
    Sketcher.Constraint("Coincident", 1, 2, 2, 1),
    Sketcher.Constraint("Coincident", 2, 2, 3, 1),
    Sketcher.Constraint("Coincident", 3, 2, 0, 1),
    Sketcher.Constraint("Coincident", 4, 2, 5, 1),
    Sketcher.Constraint("Coincident", 5, 2, 6, 1),
    Sketcher.Constraint("Coincident", 6, 2, 7, 1),
    Sketcher.Constraint("Coincident", 7, 2, 4, 1),
    Sketcher.Constraint("Coincident", 8, 2, 9, 1),
    Sketcher.Constraint("Coincident", 9, 2, 10, 1),
    Sketcher.Constraint("Coincident", 10, 2, 11, 1),
    Sketcher.Constraint("Coincident", 11, 2, 8, 1),
    Sketcher.Constraint("Coincident", 12, 2, 13, 1),
    Sketcher.Constraint("Coincident", 13, 2, 14, 1),
    Sketcher.Constraint("Coincident", 14, 2, 15, 1),
    Sketcher.Constraint("Coincident", 15, 2, 12, 1),
    Sketcher.Constraint("Vertical", 0),
    Sketcher.Constraint("Horizontal", 1),
    Sketcher.Constraint("Vertical", 2),
    Sketcher.Constraint("Horizontal", 3),
    Sketcher.Constraint("Vertical", 4),
    Sketcher.Constraint("Horizontal", 5),
    Sketcher.Constraint("Vertical", 6),
    Sketcher.Constraint("Horizontal", 7),
    Sketcher.Constraint("Vertical", 8),
    Sketcher.Constraint("Horizontal", 9),
    Sketcher.Constraint("Vertical", 10),
    Sketcher.Constraint("Horizontal", 11),
    Sketcher.Constraint("Vertical", 12),
    Sketcher.Constraint("Horizontal", 13),
    Sketcher.Constraint("Vertical", 14),
    Sketcher.Constraint("Horizontal", 15),
    Sketcher.Constraint("Horizontal", 5, 2, 8, 2),
    Sketcher.Constraint("Horizontal", 7, 2, 10, 2),
    Sketcher.Constraint("Horizontal", 1, 2, 12, 2),
    Sketcher.Constraint("Horizontal", 3, 2, 14, 2),
    Sketcher.Constraint("Vertical", 3, 2, 4, 2),
    Sketcher.Constraint("Vertical", 2, 2, 5, 2),
    Sketcher.Constraint("Vertical", 11, 2, 12, 2),
    Sketcher.Constraint("Vertical", 10, 2, 13, 2),
    Sketcher.Constraint("Equal", 7, 9),
    Sketcher.Constraint("Equal", 2, 4),
    Sketcher.Constraint("DistanceX", 1, 1, 1, 2, Q("3.4 mm")),
    Sketcher.Constraint("DistanceY", 0, 2, 0, 1, Q("15.4 mm")),
    Sketcher.Constraint("DistanceY", 4, 2, 0, 2, Q("28 mm")),
    Sketcher.Constraint("DistanceX", 8, 2, 4, 2, Q("46 mm")),
    Sketcher.Constraint("DistanceX", -1, 1, 0, 2, Q("101.3 mm")),
    Sketcher.Constraint("DistanceY", -1, 1, 0, 2, Q("38.8 mm")),
])
pocket8 = doc.addObject("PartDesign::Pocket", "Pocket007")
body.addObject(pocket8)
pocket8.Profile = sketch10
pocket8.Type = "ThroughAll"

doc.recompute()
